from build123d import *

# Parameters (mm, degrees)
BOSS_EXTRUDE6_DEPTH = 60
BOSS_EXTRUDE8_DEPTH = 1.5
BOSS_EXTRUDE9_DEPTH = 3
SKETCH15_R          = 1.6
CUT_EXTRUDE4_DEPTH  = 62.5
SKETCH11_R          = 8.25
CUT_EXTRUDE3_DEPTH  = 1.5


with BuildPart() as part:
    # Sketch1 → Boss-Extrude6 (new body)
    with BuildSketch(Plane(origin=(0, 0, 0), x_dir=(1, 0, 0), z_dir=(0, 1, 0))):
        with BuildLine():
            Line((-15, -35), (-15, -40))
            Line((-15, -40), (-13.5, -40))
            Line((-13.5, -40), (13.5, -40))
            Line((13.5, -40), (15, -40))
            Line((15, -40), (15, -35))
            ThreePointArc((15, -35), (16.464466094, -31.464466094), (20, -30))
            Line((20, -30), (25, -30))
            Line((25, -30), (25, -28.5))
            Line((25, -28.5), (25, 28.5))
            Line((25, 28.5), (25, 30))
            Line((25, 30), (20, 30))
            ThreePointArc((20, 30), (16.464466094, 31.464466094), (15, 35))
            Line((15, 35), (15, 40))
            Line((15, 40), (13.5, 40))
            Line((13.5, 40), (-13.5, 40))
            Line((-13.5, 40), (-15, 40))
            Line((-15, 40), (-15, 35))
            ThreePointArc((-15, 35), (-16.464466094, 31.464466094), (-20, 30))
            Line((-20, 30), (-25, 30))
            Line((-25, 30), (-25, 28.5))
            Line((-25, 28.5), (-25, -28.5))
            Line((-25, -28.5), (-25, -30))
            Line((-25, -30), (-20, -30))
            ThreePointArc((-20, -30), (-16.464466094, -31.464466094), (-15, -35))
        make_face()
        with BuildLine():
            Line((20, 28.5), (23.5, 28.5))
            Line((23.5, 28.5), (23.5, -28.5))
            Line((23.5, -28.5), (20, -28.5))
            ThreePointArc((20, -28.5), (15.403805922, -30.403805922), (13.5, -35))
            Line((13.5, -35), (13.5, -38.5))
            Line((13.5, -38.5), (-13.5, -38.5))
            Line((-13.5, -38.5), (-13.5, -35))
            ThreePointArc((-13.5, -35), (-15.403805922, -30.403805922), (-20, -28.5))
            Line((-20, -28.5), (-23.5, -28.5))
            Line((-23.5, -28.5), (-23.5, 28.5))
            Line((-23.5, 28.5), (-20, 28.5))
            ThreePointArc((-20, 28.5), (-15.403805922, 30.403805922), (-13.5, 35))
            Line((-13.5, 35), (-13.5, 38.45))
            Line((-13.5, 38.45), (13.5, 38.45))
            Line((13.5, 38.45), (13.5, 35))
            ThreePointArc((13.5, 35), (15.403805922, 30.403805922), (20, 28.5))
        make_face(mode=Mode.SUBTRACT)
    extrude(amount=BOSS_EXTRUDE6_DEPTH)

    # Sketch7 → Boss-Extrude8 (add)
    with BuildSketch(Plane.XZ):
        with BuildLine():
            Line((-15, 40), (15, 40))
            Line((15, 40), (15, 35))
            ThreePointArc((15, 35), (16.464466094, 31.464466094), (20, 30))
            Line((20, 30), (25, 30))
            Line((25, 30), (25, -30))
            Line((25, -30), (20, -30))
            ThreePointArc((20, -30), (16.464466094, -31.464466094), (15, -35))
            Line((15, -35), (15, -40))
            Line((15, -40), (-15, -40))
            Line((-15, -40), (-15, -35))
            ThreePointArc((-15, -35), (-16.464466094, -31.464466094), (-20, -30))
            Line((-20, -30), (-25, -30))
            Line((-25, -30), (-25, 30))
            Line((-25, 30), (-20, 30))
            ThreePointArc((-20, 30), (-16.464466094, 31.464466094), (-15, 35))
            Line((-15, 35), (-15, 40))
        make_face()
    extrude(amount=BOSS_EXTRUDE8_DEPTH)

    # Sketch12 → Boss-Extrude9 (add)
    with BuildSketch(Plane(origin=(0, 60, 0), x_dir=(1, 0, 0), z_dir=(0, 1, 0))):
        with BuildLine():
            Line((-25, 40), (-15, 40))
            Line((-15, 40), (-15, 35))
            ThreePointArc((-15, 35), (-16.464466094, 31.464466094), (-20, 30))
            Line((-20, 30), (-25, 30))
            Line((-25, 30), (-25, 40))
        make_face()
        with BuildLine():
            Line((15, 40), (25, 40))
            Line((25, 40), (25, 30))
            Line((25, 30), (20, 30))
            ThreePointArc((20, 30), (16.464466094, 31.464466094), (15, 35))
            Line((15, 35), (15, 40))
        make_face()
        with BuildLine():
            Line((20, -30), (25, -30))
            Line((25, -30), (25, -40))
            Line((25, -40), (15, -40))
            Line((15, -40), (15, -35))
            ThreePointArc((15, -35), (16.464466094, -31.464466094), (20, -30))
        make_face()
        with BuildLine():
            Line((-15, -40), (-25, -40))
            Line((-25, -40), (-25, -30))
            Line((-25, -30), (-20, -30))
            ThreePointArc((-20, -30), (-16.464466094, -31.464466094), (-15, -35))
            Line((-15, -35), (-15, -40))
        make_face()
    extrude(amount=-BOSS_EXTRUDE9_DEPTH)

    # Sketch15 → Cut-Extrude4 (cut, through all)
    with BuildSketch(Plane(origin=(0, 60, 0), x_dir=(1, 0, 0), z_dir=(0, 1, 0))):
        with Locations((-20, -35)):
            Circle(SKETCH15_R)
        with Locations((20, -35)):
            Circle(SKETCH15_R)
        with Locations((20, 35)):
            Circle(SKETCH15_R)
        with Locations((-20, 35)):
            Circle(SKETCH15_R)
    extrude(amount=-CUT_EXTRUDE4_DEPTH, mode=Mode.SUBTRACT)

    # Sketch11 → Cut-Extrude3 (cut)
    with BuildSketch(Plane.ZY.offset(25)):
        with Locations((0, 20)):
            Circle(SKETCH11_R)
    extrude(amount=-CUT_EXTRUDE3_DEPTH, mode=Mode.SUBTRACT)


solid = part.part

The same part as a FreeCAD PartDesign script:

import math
import FreeCAD as App
import Part
import Sketcher

doc = App.newDocument("Part")
body = doc.addObject("PartDesign::Body", "Body")

# Sketch on XZ plane
sketch1 = body.newObject("Sketcher::SketchObject", "Sketch")
sketch1.AttachmentSupport = (doc.getObject("XZ_Plane"), [""])
sketch1.MapMode = "FlatFace"
sketch1.addGeometry(Part.LineSegment(App.Vector(-15, 35, 0), App.Vector(-15, 40, 0)), False)
sketch1.addGeometry(Part.LineSegment(App.Vector(-15, 40, 0), App.Vector(15, 40, 0)), False)
sketch1.addGeometry(Part.LineSegment(App.Vector(15, 40, 0), App.Vector(15, 35, 0)), False)
sketch1.addGeometry(Part.ArcOfCircle(Part.Circle(App.Vector(20, 35, 0), App.Vector(0, 0, 1), 5), math.radians(180), math.radians(270)), False)
sketch1.addGeometry(Part.LineSegment(App.Vector(20, 30, 0), App.Vector(25, 30, 0)), False)
sketch1.addGeometry(Part.LineSegment(App.Vector(25, 30, 0), App.Vector(25, -30, 0)), False)
sketch1.addGeometry(Part.LineSegment(App.Vector(25, -30, 0), App.Vector(20, -30, 0)), False)
sketch1.addGeometry(Part.ArcOfCircle(Part.Circle(App.Vector(20, -35, 0), App.Vector(0, 0, 1), 5), math.radians(90), math.radians(180)), False)
sketch1.addGeometry(Part.LineSegment(App.Vector(15, -35, 0), App.Vector(15, -40, 0)), False)
sketch1.addGeometry(Part.LineSegment(App.Vector(15, -40, 0), App.Vector(-15, -40, 0)), False)
sketch1.addGeometry(Part.LineSegment(App.Vector(-15, -40, 0), App.Vector(-15, -35, 0)), False)
sketch1.addGeometry(Part.ArcOfCircle(Part.Circle(App.Vector(-20, -35, 0), App.Vector(0, 0, 1), 5), math.radians(0), math.radians(90)), False)
sketch1.addGeometry(Part.LineSegment(App.Vector(-20, -30, 0), App.Vector(-25, -30, 0)), False)
sketch1.addGeometry(Part.LineSegment(App.Vector(-25, -30, 0), App.Vector(-25, 30, 0)), False)
sketch1.addGeometry(Part.LineSegment(App.Vector(-25, 30, 0), App.Vector(-20, 30, 0)), False)
sketch1.addGeometry(Part.ArcOfCircle(Part.Circle(App.Vector(-20, 35, 0), App.Vector(0, 0, 1), 5), math.radians(-90), math.radians(0)), False)
sketch1.addGeometry(Part.ArcOfCircle(Part.Circle(App.Vector(20, -35, 0), App.Vector(0, 0, 1), 6.5), math.radians(90), math.radians(180)), False)
sketch1.addGeometry(Part.LineSegment(App.Vector(20, -28.5, 0), App.Vector(23.5, -28.5, 0)), False)
sketch1.addGeometry(Part.LineSegment(App.Vector(23.5, -28.5, 0), App.Vector(23.5, 28.5, 0)), False)
sketch1.addGeometry(Part.LineSegment(App.Vector(23.5, 28.5, 0), App.Vector(20, 28.5, 0)), False)
sketch1.addGeometry(Part.ArcOfCircle(Part.Circle(App.Vector(20, 35, 0), App.Vector(0, 0, 1), 6.5), math.radians(180), math.radians(270)), False)
sketch1.addGeometry(Part.LineSegment(App.Vector(13.5, 35, 0), App.Vector(13.5, 38.5, 0)), False)
sketch1.addGeometry(Part.LineSegment(App.Vector(13.5, 38.5, 0), App.Vector(-13.5, 38.5, 0)), False)
sketch1.addGeometry(Part.LineSegment(App.Vector(-13.5, 38.5, 0), App.Vector(-13.5, 35, 0)), False)
sketch1.addGeometry(Part.ArcOfCircle(Part.Circle(App.Vector(-20, 35, 0), App.Vector(0, 0, 1), 6.5), math.radians(-90), math.radians(0)), False)
sketch1.addGeometry(Part.LineSegment(App.Vector(-20, 28.5, 0), App.Vector(-23.5, 28.5, 0)), False)
sketch1.addGeometry(Part.LineSegment(App.Vector(-23.5, 28.5, 0), App.Vector(-23.5, -28.5, 0)), False)
sketch1.addGeometry(Part.LineSegment(App.Vector(-23.5, -28.5, 0), App.Vector(-20, -28.5, 0)), False)
sketch1.addGeometry(Part.ArcOfCircle(Part.Circle(App.Vector(-20, -35, 0), App.Vector(0, 0, 1), 6.5), math.radians(0), math.radians(90)), False)
sketch1.addGeometry(Part.LineSegment(App.Vector(-13.5, -35, 0), App.Vector(-13.5, -38.5, 0)), False)
sketch1.addGeometry(Part.LineSegment(App.Vector(-13.5, -38.5, 0), App.Vector(13.5, -38.5, 0)), False)
sketch1.addGeometry(Part.LineSegment(App.Vector(13.5, -38.5, 0), App.Vector(13.5, -35, 0)), False)
sketch1.addConstraint(Sketcher.Constraint("Coincident", 0, 2, 1, 1))
sketch1.addConstraint(Sketcher.Constraint("Coincident", 1, 2, 2, 1))
sketch1.addConstraint(Sketcher.Constraint("Tangent", 2, 2, 3, 1))
sketch1.addConstraint(Sketcher.Constraint("Tangent", 3, 2, 4, 1))
sketch1.addConstraint(Sketcher.Constraint("Coincident", 4, 2, 5, 1))
sketch1.addConstraint(Sketcher.Constraint("Coincident", 5, 2, 6, 1))
sketch1.addConstraint(Sketcher.Constraint("Tangent", 6, 2, 7, 1))
sketch1.addConstraint(Sketcher.Constraint("Tangent", 7, 2, 8, 1))
sketch1.addConstraint(Sketcher.Constraint("Coincident", 8, 2, 9, 1))
sketch1.addConstraint(Sketcher.Constraint("Coincident", 9, 2, 10, 1))
sketch1.addConstraint(Sketcher.Constraint("Tangent", 10, 2, 11, 1))
sketch1.addConstraint(Sketcher.Constraint("Tangent", 11, 2, 12, 1))
sketch1.addConstraint(Sketcher.Constraint("Coincident", 12, 2, 13, 1))
sketch1.addConstraint(Sketcher.Constraint("Coincident", 13, 2, 14, 1))
sketch1.addConstraint(Sketcher.Constraint("Tangent", 14, 2, 15, 1))
sketch1.addConstraint(Sketcher.Constraint("Tangent", 15, 2, 0, 1))
sketch1.addConstraint(Sketcher.Constraint("Tangent", 16, 1, 17, 1))
sketch1.addConstraint(Sketcher.Constraint("Coincident", 17, 2, 18, 1))
sketch1.addConstraint(Sketcher.Constraint("Coincident", 18, 2, 19, 1))
sketch1.addConstraint(Sketcher.Constraint("Tangent", 19, 2, 20, 2))
sketch1.addConstraint(Sketcher.Constraint("Tangent", 20, 1, 21, 1))
sketch1.addConstraint(Sketcher.Constraint("Coincident", 21, 2, 22, 1))
sketch1.addConstraint(Sketcher.Constraint("Coincident", 22, 2, 23, 1))
sketch1.addConstraint(Sketcher.Constraint("Tangent", 23, 2, 24, 2))
sketch1.addConstraint(Sketcher.Constraint("Tangent", 24, 1, 25, 1))
sketch1.addConstraint(Sketcher.Constraint("Coincident", 25, 2, 26, 1))
sketch1.addConstraint(Sketcher.Constraint("Coincident", 26, 2, 27, 1))
sketch1.addConstraint(Sketcher.Constraint("Tangent", 27, 2, 28, 2))
sketch1.addConstraint(Sketcher.Constraint("Tangent", 28, 1, 29, 1))
sketch1.addConstraint(Sketcher.Constraint("Coincident", 29, 2, 30, 1))
sketch1.addConstraint(Sketcher.Constraint("Coincident", 30, 2, 31, 1))
sketch1.addConstraint(Sketcher.Constraint("Tangent", 31, 2, 16, 2))
sketch1.addConstraint(Sketcher.Constraint("Vertical", 0))
sketch1.addConstraint(Sketcher.Constraint("Horizontal", 1))
sketch1.addConstraint(Sketcher.Constraint("Vertical", 2))
sketch1.addConstraint(Sketcher.Constraint("Horizontal", 4))
sketch1.addConstraint(Sketcher.Constraint("Vertical", 5))
sketch1.addConstraint(Sketcher.Constraint("Horizontal", 6))
sketch1.addConstraint(Sketcher.Constraint("Vertical", 8))
sketch1.addConstraint(Sketcher.Constraint("Horizontal", 9))
sketch1.addConstraint(Sketcher.Constraint("Vertical", 10))
sketch1.addConstraint(Sketcher.Constraint("Horizontal", 12))
sketch1.addConstraint(Sketcher.Constraint("Vertical", 13))
sketch1.addConstraint(Sketcher.Constraint("Horizontal", 14))
sketch1.addConstraint(Sketcher.Constraint("Horizontal", 17))
sketch1.addConstraint(Sketcher.Constraint("Vertical", 18))
sketch1.addConstraint(Sketcher.Constraint("Horizontal", 19))
sketch1.addConstraint(Sketcher.Constraint("Vertical", 21))
sketch1.addConstraint(Sketcher.Constraint("Horizontal", 22))
sketch1.addConstraint(Sketcher.Constraint("Vertical", 23))
sketch1.addConstraint(Sketcher.Constraint("Horizontal", 25))
sketch1.addConstraint(Sketcher.Constraint("Vertical", 26))
sketch1.addConstraint(Sketcher.Constraint("Horizontal", 27))
sketch1.addConstraint(Sketcher.Constraint("Vertical", 29))
sketch1.addConstraint(Sketcher.Constraint("Horizontal", 30))
sketch1.addConstraint(Sketcher.Constraint("Vertical", 31))
sketch1.addConstraint(Sketcher.Constraint("Coincident", 16, 3, 7, 3))
sketch1.addConstraint(Sketcher.Constraint("Coincident", 20, 3, 3, 3))
sketch1.addConstraint(Sketcher.Constraint("Coincident", 24, 3, 15, 3))
sketch1.addConstraint(Sketcher.Constraint("Coincident", 28, 3, 11, 3))
sketch1.addConstraint(Sketcher.Constraint("Equal", 3, 7))
sketch1.addConstraint(Sketcher.Constraint("Equal", 7, 11))
sketch1.addConstraint(Sketcher.Constraint("Equal", 11, 15))
sketch1.addConstraint(Sketcher.Constraint("Equal", 16, 20))
sketch1.addConstraint(Sketcher.Constraint("Equal", 20, 24))
sketch1.addConstraint(Sketcher.Constraint("Equal", 24, 28))
sketch1.addConstraint(Sketcher.Constraint("Symmetric", 3, 3, 11, 3, -1, 1))
sketch1.addConstraint(Sketcher.Constraint("Symmetric", 7, 3, 15, 3, -1, 1))
sketch1.addConstraint(Sketcher.Constraint("Symmetric", 7, 3, 11, 3, -2))
sketch1.addConstraint(Sketcher.Constraint("Equal", 6, 12))
sketch1.addConstraint(Sketcher.Constraint("Equal", 19, 25))
sketch1.addConstraint(Sketcher.Constraint("Equal", 14, 0))
sketch1.addConstraint(Sketcher.Constraint("Equal", 2, 8))
sketch1.addConstraint(Sketcher.Constraint("Equal", 27, 21))
sketch1.addConstraint(Sketcher.Constraint("Radius", 3, 5.0))
sketch1.addConstraint(Sketcher.Constraint("Radius", 16, 6.5))
sketch1.addConstraint(Sketcher.Constraint("DistanceX", 1, 1, 1, 2, 30.0))
sketch1.addConstraint(Sketcher.Constraint("DistanceX", 4, 1, 4, 2, 5.0))
sketch1.addConstraint(Sketcher.Constraint("DistanceY", 5, 2, 5, 1, 60.0))
sketch1.addConstraint(Sketcher.Constraint("DistanceX", 17, 1, 17, 2, 3.5))
sketch1.addConstraint(Sketcher.Constraint("DistanceY", 29, 2, 29, 1, 3.45))
pad1 = body.newObject("PartDesign::Pad", "Pad")
pad1.Profile = sketch1
pad1.Length = 60
pad1.Reversed = True

# Sketch on XZ plane
sketch2 = body.newObject("Sketcher::SketchObject", "Sketch001")
sketch2.AttachmentSupport = (doc.getObject("XZ_Plane"), [""])
sketch2.MapMode = "FlatFace"
sketch2.addGeometry(Part.LineSegment(App.Vector(15, 40, 0), App.Vector(-15, 40, 0)), False)
sketch2.addGeometry(Part.LineSegment(App.Vector(-15, 40, 0), App.Vector(-15, 35, 0)), False)
sketch2.addGeometry(Part.ArcOfCircle(Part.Circle(App.Vector(-20, 35, 0), App.Vector(0, 0, 1), 5), math.radians(-90), math.radians(0)), False)
sketch2.addGeometry(Part.LineSegment(App.Vector(-20, 30, 0), App.Vector(-25, 30, 0)), False)
sketch2.addGeometry(Part.LineSegment(App.Vector(-25, 30, 0), App.Vector(-25, -30, 0)), False)
sketch2.addGeometry(Part.LineSegment(App.Vector(-25, -30, 0), App.Vector(-20, -30, 0)), False)
sketch2.addGeometry(Part.ArcOfCircle(Part.Circle(App.Vector(-20, -35, 0), App.Vector(0, 0, 1), 5), math.radians(0), math.radians(90)), False)
sketch2.addGeometry(Part.LineSegment(App.Vector(-15, -35, 0), App.Vector(-15, -40, 0)), False)
sketch2.addGeometry(Part.LineSegment(App.Vector(-15, -40, 0), App.Vector(15, -40, 0)), False)
sketch2.addGeometry(Part.LineSegment(App.Vector(15, -40, 0), App.Vector(15, -35, 0)), False)
sketch2.addGeometry(Part.ArcOfCircle(Part.Circle(App.Vector(20, -35, 0), App.Vector(0, 0, 1), 5), math.radians(90), math.radians(180)), False)
sketch2.addGeometry(Part.LineSegment(App.Vector(20, -30, 0), App.Vector(25, -30, 0)), False)
sketch2.addGeometry(Part.LineSegment(App.Vector(25, -30, 0), App.Vector(25, 30, 0)), False)
sketch2.addGeometry(Part.LineSegment(App.Vector(25, 30, 0), App.Vector(20, 30, 0)), False)
sketch2.addGeometry(Part.ArcOfCircle(Part.Circle(App.Vector(20, 35, 0), App.Vector(0, 0, 1), 5), math.radians(180), math.radians(270)), False)
sketch2.addGeometry(Part.LineSegment(App.Vector(15, 35, 0), App.Vector(15, 40, 0)), False)
sketch2.addConstraint(Sketcher.Constraint("Coincident", 0, 2, 1, 1))
sketch2.addConstraint(Sketcher.Constraint("Tangent", 1, 2, 2, 2))
sketch2.addConstraint(Sketcher.Constraint("Tangent", 2, 1, 3, 1))
sketch2.addConstraint(Sketcher.Constraint("Coincident", 3, 2, 4, 1))
sketch2.addConstraint(Sketcher.Constraint("Coincident", 4, 2, 5, 1))
sketch2.addConstraint(Sketcher.Constraint("Tangent", 5, 2, 6, 2))
sketch2.addConstraint(Sketcher.Constraint("Tangent", 6, 1, 7, 1))
sketch2.addConstraint(Sketcher.Constraint("Coincident", 7, 2, 8, 1))
sketch2.addConstraint(Sketcher.Constraint("Coincident", 8, 2, 9, 1))
sketch2.addConstraint(Sketcher.Constraint("Tangent", 9, 2, 10, 2))
sketch2.addConstraint(Sketcher.Constraint("Tangent", 10, 1, 11, 1))
sketch2.addConstraint(Sketcher.Constraint("Coincident", 11, 2, 12, 1))
sketch2.addConstraint(Sketcher.Constraint("Coincident", 12, 2, 13, 1))
sketch2.addConstraint(Sketcher.Constraint("Tangent", 13, 2, 14, 2))
sketch2.addConstraint(Sketcher.Constraint("Tangent", 14, 1, 15, 1))
sketch2.addConstraint(Sketcher.Constraint("Coincident", 15, 2, 0, 1))
sketch2.addConstraint(Sketcher.Constraint("Horizontal", 0))
sketch2.addConstraint(Sketcher.Constraint("Vertical", 1))
sketch2.addConstraint(Sketcher.Constraint("Horizontal", 3))
sketch2.addConstraint(Sketcher.Constraint("Vertical", 4))
sketch2.addConstraint(Sketcher.Constraint("Horizontal", 5))
sketch2.addConstraint(Sketcher.Constraint("Vertical", 7))
sketch2.addConstraint(Sketcher.Constraint("Horizontal", 8))
sketch2.addConstraint(Sketcher.Constraint("Vertical", 9))
sketch2.addConstraint(Sketcher.Constraint("Horizontal", 11))
sketch2.addConstraint(Sketcher.Constraint("Vertical", 12))
sketch2.addConstraint(Sketcher.Constraint("Horizontal", 13))
sketch2.addConstraint(Sketcher.Constraint("Vertical", 15))
sketch2.addConstraint(Sketcher.Constraint("Equal", 2, 6))
sketch2.addConstraint(Sketcher.Constraint("Equal", 6, 10))
sketch2.addConstraint(Sketcher.Constraint("Equal", 10, 14))
sketch2.addConstraint(Sketcher.Constraint("Symmetric", 2, 3, 10, 3, -1, 1))
sketch2.addConstraint(Sketcher.Constraint("Symmetric", 6, 3, 14, 3, -1, 1))
sketch2.addConstraint(Sketcher.Constraint("Symmetric", 6, 3, 10, 3, -2))
sketch2.addConstraint(Sketcher.Constraint("Equal", 5, 11))
sketch2.addConstraint(Sketcher.Constraint("Equal", 13, 1))
sketch2.addConstraint(Sketcher.Constraint("Equal", 1, 7))
sketch2.addConstraint(Sketcher.Constraint("Radius", 2, 5.0))
sketch2.addConstraint(Sketcher.Constraint("DistanceX", 0, 2, 0, 1, 30.0))
sketch2.addConstraint(Sketcher.Constraint("DistanceX", 3, 2, 3, 1, 5.0))
sketch2.addConstraint(Sketcher.Constraint("DistanceY", 4, 2, 4, 1, 60.0))
pad2 = body.newObject("PartDesign::Pad", "Pad001")
pad2.Profile = sketch2
pad2.Length = 1.5

# Sketch on XZ plane
sketch3 = body.newObject("Sketcher::SketchObject", "Sketch002")
sketch3.AttachmentSupport = (doc.getObject("XZ_Plane"), [""])
sketch3.MapMode = "FlatFace"
sketch3.AttachmentOffset = App.Placement(App.Vector(0, 0, -60), App.Rotation())
sketch3.addGeometry(Part.LineSegment(App.Vector(-15, -40, 0), App.Vector(-25, -40, 0)), False)
sketch3.addGeometry(Part.LineSegment(App.Vector(-25, -40, 0), App.Vector(-25, -30, 0)), False)
sketch3.addGeometry(Part.LineSegment(App.Vector(-25, -30, 0), App.Vector(-20, -30, 0)), False)
sketch3.addGeometry(Part.ArcOfCircle(Part.Circle(App.Vector(-20, -35, 0), App.Vector(0, 0, 1), 5), math.radians(0), math.radians(90)), False)
sketch3.addGeometry(Part.LineSegment(App.Vector(-15, -35, 0), App.Vector(-15, -40, 0)), False)
sketch3.addGeometry(Part.LineSegment(App.Vector(25, -40, 0), App.Vector(15, -40, 0)), False)
sketch3.addGeometry(Part.LineSegment(App.Vector(15, -40, 0), App.Vector(15, -35, 0)), False)
sketch3.addGeometry(Part.ArcOfCircle(Part.Circle(App.Vector(20, -35, 0), App.Vector(0, 0, 1), 5), math.radians(90), math.radians(180)), False)
sketch3.addGeometry(Part.LineSegment(App.Vector(20, -30, 0), App.Vector(25, -30, 0)), False)
sketch3.addGeometry(Part.LineSegment(App.Vector(25, -30, 0), App.Vector(25, -40, 0)), False)
sketch3.addGeometry(Part.LineSegment(App.Vector(25, 30, 0), App.Vector(20, 30, 0)), False)
sketch3.addGeometry(Part.ArcOfCircle(Part.Circle(App.Vector(20, 35, 0), App.Vector(0, 0, 1), 5), math.radians(180), math.radians(270)), False)
sketch3.addGeometry(Part.LineSegment(App.Vector(15, 35, 0), App.Vector(15, 40, 0)), False)
sketch3.addGeometry(Part.LineSegment(App.Vector(15, 40, 0), App.Vector(25, 40, 0)), False)
sketch3.addGeometry(Part.LineSegment(App.Vector(25, 40, 0), App.Vector(25, 30, 0)), False)
sketch3.addGeometry(Part.LineSegment(App.Vector(-25, 40, 0), App.Vector(-15, 40, 0)), False)
sketch3.addGeometry(Part.LineSegment(App.Vector(-15, 40, 0), App.Vector(-15, 35, 0)), False)
sketch3.addGeometry(Part.ArcOfCircle(Part.Circle(App.Vector(-20, 35, 0), App.Vector(0, 0, 1), 5), math.radians(-90), math.radians(0)), False)
sketch3.addGeometry(Part.LineSegment(App.Vector(-20, 30, 0), App.Vector(-25, 30, 0)), False)
sketch3.addGeometry(Part.LineSegment(App.Vector(-25, 30, 0), App.Vector(-25, 40, 0)), False)
sketch3.addConstraint(Sketcher.Constraint("Coincident", 0, 2, 1, 1))
sketch3.addConstraint(Sketcher.Constraint("Coincident", 1, 2, 2, 1))
sketch3.addConstraint(Sketcher.Constraint("Tangent", 2, 2, 3, 2))
sketch3.addConstraint(Sketcher.Constraint("Tangent", 3, 1, 4, 1))
sketch3.addConstraint(Sketcher.Constraint("Coincident", 4, 2, 0, 1))
sketch3.addConstraint(Sketcher.Constraint("Coincident", 5, 2, 6, 1))
sketch3.addConstraint(Sketcher.Constraint("Tangent", 6, 2, 7, 2))
sketch3.addConstraint(Sketcher.Constraint("Tangent", 7, 1, 8, 1))
sketch3.addConstraint(Sketcher.Constraint("Coincident", 8, 2, 9, 1))
sketch3.addConstraint(Sketcher.Constraint("Coincident", 9, 2, 5, 1))
sketch3.addConstraint(Sketcher.Constraint("Tangent", 10, 2, 11, 2))
sketch3.addConstraint(Sketcher.Constraint("Tangent", 11, 1, 12, 1))
sketch3.addConstraint(Sketcher.Constraint("Coincident", 12, 2, 13, 1))
sketch3.addConstraint(Sketcher.Constraint("Coincident", 13, 2, 14, 1))
sketch3.addConstraint(Sketcher.Constraint("Coincident", 14, 2, 10, 1))
sketch3.addConstraint(Sketcher.Constraint("Coincident", 15, 2, 16, 1))
sketch3.addConstraint(Sketcher.Constraint("Tangent", 16, 2, 17, 2))
sketch3.addConstraint(Sketcher.Constraint("Tangent", 17, 1, 18, 1))
sketch3.addConstraint(Sketcher.Constraint("Coincident", 18, 2, 19, 1))
sketch3.addConstraint(Sketcher.Constraint("Coincident", 19, 2, 15, 1))
sketch3.addConstraint(Sketcher.Constraint("Horizontal", 0))
sketch3.addConstraint(Sketcher.Constraint("Vertical", 1))
sketch3.addConstraint(Sketcher.Constraint("Horizontal", 2))
sketch3.addConstraint(Sketcher.Constraint("Vertical", 4))
sketch3.addConstraint(Sketcher.Constraint("Horizontal", 5))
sketch3.addConstraint(Sketcher.Constraint("Vertical", 6))
sketch3.addConstraint(Sketcher.Constraint("Horizontal", 8))
sketch3.addConstraint(Sketcher.Constraint("Vertical", 9))
sketch3.addConstraint(Sketcher.Constraint("Horizontal", 10))
sketch3.addConstraint(Sketcher.Constraint("Vertical", 12))
sketch3.addConstraint(Sketcher.Constraint("Horizontal", 13))
sketch3.addConstraint(Sketcher.Constraint("Vertical", 14))
sketch3.addConstraint(Sketcher.Constraint("Horizontal", 15))
sketch3.addConstraint(Sketcher.Constraint("Vertical", 16))
sketch3.addConstraint(Sketcher.Constraint("Horizontal", 18))
sketch3.addConstraint(Sketcher.Constraint("Vertical", 19))
sketch3.addConstraint(Sketcher.Constraint("Equal", 3, 7))
sketch3.addConstraint(Sketcher.Constraint("Equal", 7, 11))
sketch3.addConstraint(Sketcher.Constraint("Equal", 11, 17))
sketch3.addConstraint(Sketcher.Constraint("Symmetric", 3, 3, 11, 3, -1, 1))
sketch3.addConstraint(Sketcher.Constraint("Symmetric", 7, 3, 17, 3, -1, 1))
sketch3.addConstraint(Sketcher.Constraint("Symmetric", 0, 2, 13, 2, -1, 1))
sketch3.addConstraint(Sketcher.Constraint("Symmetric", 9, 2, 19, 2, -1, 1))
sketch3.addConstraint(Sketcher.Constraint("Symmetric", 3, 3, 7, 3, -2))
sketch3.addConstraint(Sketcher.Constraint("Symmetric", 0, 2, 9, 2, -2))
sketch3.addConstraint(Sketcher.Constraint("Equal", 15, 1))
sketch3.addConstraint(Sketcher.Constraint("Radius", 3, 5.0))
sketch3.addConstraint(Sketcher.Constraint("DistanceX", 0, 2, 0, 1, 10.0))
sketch3.addConstraint(Sketcher.Constraint("DistanceX", 3, 3, -1, 1, 20.0))
sketch3.addConstraint(Sketcher.Constraint("DistanceY", 3, 3, -1, 1, 35.0))
pad3 = body.newObject("PartDesign::Pad", "Pad002")
pad3.Profile = sketch3
pad3.Length = 3

# Sketch on XZ plane
sketch4 = body.newObject("Sketcher::SketchObject", "Sketch003")
sketch4.AttachmentSupport = (doc.getObject("XZ_Plane"), [""])
sketch4.MapMode = "FlatFace"
sketch4.AttachmentOffset = App.Placement(App.Vector(0, 0, -60), App.Rotation())
sketch4.addGeometry(Part.Circle(App.Vector(-20, 35, 0), App.Vector(0, 0, 1), 1.6), False)
sketch4.addGeometry(Part.Circle(App.Vector(20, 35, 0), App.Vector(0, 0, 1), 1.6), False)
sketch4.addGeometry(Part.Circle(App.Vector(20, -35, 0), App.Vector(0, 0, 1), 1.6), False)
sketch4.addGeometry(Part.Circle(App.Vector(-20, -35, 0), App.Vector(0, 0, 1), 1.6), False)
sketch4.addConstraint(Sketcher.Constraint("Equal", 0, 1))
sketch4.addConstraint(Sketcher.Constraint("Equal", 1, 2))
sketch4.addConstraint(Sketcher.Constraint("Equal", 2, 3))
sketch4.addConstraint(Sketcher.Constraint("Symmetric", 0, 3, 2, 3, -1, 1))
sketch4.addConstraint(Sketcher.Constraint("Symmetric", 1, 3, 3, 3, -1, 1))
sketch4.addConstraint(Sketcher.Constraint("Symmetric", 0, 3, 1, 3, -2))
sketch4.addConstraint(Sketcher.Constraint("Diameter", 0, 3.2))
sketch4.addConstraint(Sketcher.Constraint("DistanceX", 0, 3, -1, 1, 20.0))
sketch4.addConstraint(Sketcher.Constraint("DistanceY", -1, 1, 0, 3, 35.0))
pocket1 = body.newObject("PartDesign::Pocket", "Pocket")
pocket1.Profile = sketch4
pocket1.Type = "ThroughAll"
pocket1.Reversed = True

# Sketch on YZ plane
sketch5 = body.newObject("Sketcher::SketchObject", "Sketch004")
sketch5.AttachmentSupport = (doc.getObject("YZ_Plane"), [""])
sketch5.MapMode = "FlatFace"
sketch5.AttachmentOffset = App.Placement(App.Vector(0, 0, -25), App.Rotation())
sketch5.addGeometry(Part.Circle(App.Vector(20, 0, 0), App.Vector(0, 0, 1), 8), False)
sketch5.addConstraint(Sketcher.Constraint("PointOnObject", 0, 3, -1))
sketch5.addConstraint(Sketcher.Constraint("Diameter", 0, 16.5))
sketch5.addConstraint(Sketcher.Constraint("DistanceX", -1, 1, 0, 3, 20.0))
pocket2 = body.newObject("PartDesign::Pocket", "Pocket001")
pocket2.Profile = sketch5
pocket2.Length = 1.5
pocket2.Reversed = True

doc.recompute()
